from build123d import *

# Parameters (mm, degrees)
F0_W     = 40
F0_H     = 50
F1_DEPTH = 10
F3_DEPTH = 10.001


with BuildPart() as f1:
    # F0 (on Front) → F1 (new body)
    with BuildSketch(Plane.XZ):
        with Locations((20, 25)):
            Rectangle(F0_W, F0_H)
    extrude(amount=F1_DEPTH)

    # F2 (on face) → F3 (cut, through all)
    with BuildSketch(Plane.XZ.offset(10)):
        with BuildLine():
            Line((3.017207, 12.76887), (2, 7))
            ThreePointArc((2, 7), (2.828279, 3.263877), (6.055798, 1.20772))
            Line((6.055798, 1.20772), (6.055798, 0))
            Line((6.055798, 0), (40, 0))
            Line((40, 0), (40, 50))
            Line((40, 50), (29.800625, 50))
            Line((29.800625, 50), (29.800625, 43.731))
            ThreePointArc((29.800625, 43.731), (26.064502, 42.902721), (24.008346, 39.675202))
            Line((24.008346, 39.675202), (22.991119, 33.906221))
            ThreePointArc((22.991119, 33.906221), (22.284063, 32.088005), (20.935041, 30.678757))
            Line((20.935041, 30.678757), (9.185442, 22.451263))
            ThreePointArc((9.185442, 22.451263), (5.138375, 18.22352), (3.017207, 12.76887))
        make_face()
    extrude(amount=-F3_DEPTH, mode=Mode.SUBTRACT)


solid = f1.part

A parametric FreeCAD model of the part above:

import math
import FreeCAD as App
import Part
import Sketcher


def add_polygon(sketch, points):
    """Adds a closed chain of lines whose ends are joined by coincident constraints."""
    first, n = sketch.GeometryCount, len(points)
    for a, b in zip(points, points[1:] + points[:1]):
        sketch.addGeometry(Part.LineSegment(App.Vector(*a, 0), App.Vector(*b, 0)), False)
    for i in range(n):
        sketch.addConstraint(Sketcher.Constraint("Coincident", first + i, 2, first + (i + 1) % n, 1))

doc = App.newDocument("Part")
body = doc.addObject("PartDesign::Body", "Body")

sketch1 = doc.addObject("Sketcher::SketchObject", "Sketch")
body.addObject(sketch1)
sketch1.AttachmentSupport = (doc.XZ_Plane, [""])
sketch1.MapMode = "FlatFace"
add_polygon(sketch1, [(0, 50), (0, 0), (40, 0), (40, 50)])
sketch1.addConstraint(Sketcher.Constraint("Vertical", 0))
sketch1.addConstraint(Sketcher.Constraint("Horizontal", 1))
sketch1.addConstraint(Sketcher.Constraint("Vertical", 2))
sketch1.addConstraint(Sketcher.Constraint("Horizontal", 3))
sketch1.addConstraint(Sketcher.Constraint("Coincident", 0, 2, -1, 1))
sketch1.addConstraint(Sketcher.Constraint("DistanceX", 1, 1, 1, 2, 40.0))
sketch1.addConstraint(Sketcher.Constraint("DistanceY", 0, 2, 0, 1, 50.0))
pad1 = doc.addObject("PartDesign::Pad", "Pad")
body.addObject(pad1)
pad1.Profile = sketch1
pad1.Length = 10

sketch2 = doc.addObject("Sketcher::SketchObject", "Sketch001")
body.addObject(sketch2)
sketch2.AttachmentSupport = (doc.XZ_Plane, [""])
sketch2.MapMode = "FlatFace"
sketch2.AttachmentOffset = App.Placement(App.Vector(0, 0, 10), App.Rotation())
sketch2.addGeometry(Part.LineSegment(App.Vector(3.017207, 12.76887, 0), App.Vector(2, 7, 0)), False)
sketch2.addGeometry(Part.ArcOfCircle(Part.Circle(App.Vector(6.924041, 6.13176, 0), App.Vector(0, 0, 1), 5.000002), math.radians(170.000014), math.radians(259.999984)), False)
sketch2.addGeometry(Part.LineSegment(App.Vector(6.055798, 1.20772, 0), App.Vector(6.055798, 0, 0)), False)
sketch2.addGeometry(Part.LineSegment(App.Vector(6.055798, 0, 0), App.Vector(40, 0, 0)), False)
sketch2.addGeometry(Part.LineSegment(App.Vector(40, 0, 0), App.Vector(40, 50, 0)), False)
sketch2.addGeometry(Part.LineSegment(App.Vector(40, 50, 0), App.Vector(29.800625, 50, 0)), False)
sketch2.addGeometry(Part.LineSegment(App.Vector(29.800625, 50, 0), App.Vector(29.800625, 43.731, 0)), False)
sketch2.addGeometry(Part.ArcOfCircle(Part.Circle(App.Vector(28.932385, 38.806961, 0), App.Vector(0, 0, 1), 5), math.radians(80.000006), math.radians(170.000002)), False)
sketch2.addGeometry(Part.LineSegment(App.Vector(24.008346, 39.675202, 0), App.Vector(22.991119, 33.906221, 0)), False)
sketch2.addGeometry(Part.ArcOfCircle(Part.Circle(App.Vector(18.067075, 34.774465, 0), App.Vector(0, 0, 1), 5.000005), math.radians(-54.998876), math.radians(-10.000029)), False)
sketch2.addGeometry(Part.LineSegment(App.Vector(20.935041, 30.678757, 0), App.Vector(9.185442, 22.451263, 0)), False)
sketch2.addGeometry(Part.ArcOfCircle(Part.Circle(App.Vector(17.789327, 10.164144, 0), App.Vector(0, 0, 1), 15.000005), math.radians(125.001101), math.radians(169.99999)), False)
sketch2.addConstraint(Sketcher.Constraint("Coincident", 0, 2, 1, 1))
sketch2.addConstraint(Sketcher.Constraint("Coincident", 1, 2, 2, 1))
sketch2.addConstraint(Sketcher.Constraint("Coincident", 2, 2, 3, 1))
sketch2.addConstraint(Sketcher.Constraint("Coincident", 3, 2, 4, 1))
sketch2.addConstraint(Sketcher.Constraint("Coincident", 4, 2, 5, 1))
sketch2.addConstraint(Sketcher.Constraint("Coincident", 5, 2, 6, 1))
sketch2.addConstraint(Sketcher.Constraint("Coincident", 6, 2, 7, 1))
sketch2.addConstraint(Sketcher.Constraint("Coincident", 7, 2, 8, 1))
sketch2.addConstraint(Sketcher.Constraint("Coincident", 8, 2, 9, 2))
sketch2.addConstraint(Sketcher.Constraint("Coincident", 9, 1, 10, 1))
sketch2.addConstraint(Sketcher.Constraint("Coincident", 10, 2, 11, 1))
sketch2.addConstraint(Sketcher.Constraint("Coincident", 11, 2, 0, 1))
sketch2.addConstraint(Sketcher.Constraint("Vertical", 2))
sketch2.addConstraint(Sketcher.Constraint("Horizontal", 3))
sketch2.addConstraint(Sketcher.Constraint("Vertical", 4))
sketch2.addConstraint(Sketcher.Constraint("Horizontal", 5))
sketch2.addConstraint(Sketcher.Constraint("Vertical", 6))
sketch2.addConstraint(Sketcher.Constraint("PointOnObject", 2, 2, -1))
sketch2.addConstraint(Sketcher.Constraint("Radius", 1, 5.000002))
sketch2.addConstraint(Sketcher.Constraint("Radius", 7, 5.0))
sketch2.addConstraint(Sketcher.Constraint("DistanceY", 4, 1, 4, 2, 50.0))
sketch2.addConstraint(Sketcher.Constraint("DistanceX", -1, 1, 0, 2, 2.0))
sketch2.addConstraint(Sketcher.Constraint("DistanceY", -1, 1, 0, 2, 7.0))
sketch2.addConstraint(Sketcher.Constraint("DistanceX", -1, 1, 3, 2, 40.0))
sketch2.addConstraint(Sketcher.Constraint("DistanceY", 6, 2, 6, 1, 6.269))
sketch2.addConstraint(Sketcher.Constraint("DistanceX", 3, 1, 3, 2, 33.944202))
sketch2.addConstraint(Sketcher.Constraint("Radius", 9, 5.000005))
sketch2.addConstraint(Sketcher.Constraint("Radius", 11, 15.000005))
sketch2.addConstraint(Sketcher.Constraint("DistanceY", 2, 2, 2, 1, 1.20772))
sketch2.addConstraint(Sketcher.Constraint("DistanceY", -1, 1, 7, 2, 39.675202))
sketch2.addConstraint(Sketcher.Constraint("DistanceY", 1, 3, 7, 3, 32.675201))
sketch2.addConstraint(Sketcher.Constraint("DistanceX", 10, 2, 9, 1, 11.749599))
sketch2.addConstraint(Sketcher.Constraint("DistanceX", 1, 3, 10, 2, 2.261401))
sketch2.addConstraint(Sketcher.Constraint("DistanceX", 5, 2, 5, 1, 10.199375))
sketch2.addConstraint(Sketcher.Constraint("DistanceX", -1, 1, 8, 2, 22.991119))
sketch2.addConstraint(Sketcher.Constraint("DistanceY", -1, 1, 8, 2, 33.906221))
sketch2.addConstraint(Sketcher.Constraint("DistanceY", -1, 1, 11, 2, 12.76887))
sketch2.addConstraint(Sketcher.Constraint("DistanceX", 9, 3, 7, 3, 10.865309))
sketch2.addConstraint(Sketcher.Constraint("DistanceX", 11, 3, 9, 3, 0.277748))
sketch2.addConstraint(Sketcher.Constraint("DistanceY", 11, 3, 9, 3, 24.610321))
pocket1 = doc.addObject("PartDesign::Pocket", "Pocket")
body.addObject(pocket1)
pocket1.Profile = sketch2
pocket1.Type = "ThroughAll"

doc.recompute()
